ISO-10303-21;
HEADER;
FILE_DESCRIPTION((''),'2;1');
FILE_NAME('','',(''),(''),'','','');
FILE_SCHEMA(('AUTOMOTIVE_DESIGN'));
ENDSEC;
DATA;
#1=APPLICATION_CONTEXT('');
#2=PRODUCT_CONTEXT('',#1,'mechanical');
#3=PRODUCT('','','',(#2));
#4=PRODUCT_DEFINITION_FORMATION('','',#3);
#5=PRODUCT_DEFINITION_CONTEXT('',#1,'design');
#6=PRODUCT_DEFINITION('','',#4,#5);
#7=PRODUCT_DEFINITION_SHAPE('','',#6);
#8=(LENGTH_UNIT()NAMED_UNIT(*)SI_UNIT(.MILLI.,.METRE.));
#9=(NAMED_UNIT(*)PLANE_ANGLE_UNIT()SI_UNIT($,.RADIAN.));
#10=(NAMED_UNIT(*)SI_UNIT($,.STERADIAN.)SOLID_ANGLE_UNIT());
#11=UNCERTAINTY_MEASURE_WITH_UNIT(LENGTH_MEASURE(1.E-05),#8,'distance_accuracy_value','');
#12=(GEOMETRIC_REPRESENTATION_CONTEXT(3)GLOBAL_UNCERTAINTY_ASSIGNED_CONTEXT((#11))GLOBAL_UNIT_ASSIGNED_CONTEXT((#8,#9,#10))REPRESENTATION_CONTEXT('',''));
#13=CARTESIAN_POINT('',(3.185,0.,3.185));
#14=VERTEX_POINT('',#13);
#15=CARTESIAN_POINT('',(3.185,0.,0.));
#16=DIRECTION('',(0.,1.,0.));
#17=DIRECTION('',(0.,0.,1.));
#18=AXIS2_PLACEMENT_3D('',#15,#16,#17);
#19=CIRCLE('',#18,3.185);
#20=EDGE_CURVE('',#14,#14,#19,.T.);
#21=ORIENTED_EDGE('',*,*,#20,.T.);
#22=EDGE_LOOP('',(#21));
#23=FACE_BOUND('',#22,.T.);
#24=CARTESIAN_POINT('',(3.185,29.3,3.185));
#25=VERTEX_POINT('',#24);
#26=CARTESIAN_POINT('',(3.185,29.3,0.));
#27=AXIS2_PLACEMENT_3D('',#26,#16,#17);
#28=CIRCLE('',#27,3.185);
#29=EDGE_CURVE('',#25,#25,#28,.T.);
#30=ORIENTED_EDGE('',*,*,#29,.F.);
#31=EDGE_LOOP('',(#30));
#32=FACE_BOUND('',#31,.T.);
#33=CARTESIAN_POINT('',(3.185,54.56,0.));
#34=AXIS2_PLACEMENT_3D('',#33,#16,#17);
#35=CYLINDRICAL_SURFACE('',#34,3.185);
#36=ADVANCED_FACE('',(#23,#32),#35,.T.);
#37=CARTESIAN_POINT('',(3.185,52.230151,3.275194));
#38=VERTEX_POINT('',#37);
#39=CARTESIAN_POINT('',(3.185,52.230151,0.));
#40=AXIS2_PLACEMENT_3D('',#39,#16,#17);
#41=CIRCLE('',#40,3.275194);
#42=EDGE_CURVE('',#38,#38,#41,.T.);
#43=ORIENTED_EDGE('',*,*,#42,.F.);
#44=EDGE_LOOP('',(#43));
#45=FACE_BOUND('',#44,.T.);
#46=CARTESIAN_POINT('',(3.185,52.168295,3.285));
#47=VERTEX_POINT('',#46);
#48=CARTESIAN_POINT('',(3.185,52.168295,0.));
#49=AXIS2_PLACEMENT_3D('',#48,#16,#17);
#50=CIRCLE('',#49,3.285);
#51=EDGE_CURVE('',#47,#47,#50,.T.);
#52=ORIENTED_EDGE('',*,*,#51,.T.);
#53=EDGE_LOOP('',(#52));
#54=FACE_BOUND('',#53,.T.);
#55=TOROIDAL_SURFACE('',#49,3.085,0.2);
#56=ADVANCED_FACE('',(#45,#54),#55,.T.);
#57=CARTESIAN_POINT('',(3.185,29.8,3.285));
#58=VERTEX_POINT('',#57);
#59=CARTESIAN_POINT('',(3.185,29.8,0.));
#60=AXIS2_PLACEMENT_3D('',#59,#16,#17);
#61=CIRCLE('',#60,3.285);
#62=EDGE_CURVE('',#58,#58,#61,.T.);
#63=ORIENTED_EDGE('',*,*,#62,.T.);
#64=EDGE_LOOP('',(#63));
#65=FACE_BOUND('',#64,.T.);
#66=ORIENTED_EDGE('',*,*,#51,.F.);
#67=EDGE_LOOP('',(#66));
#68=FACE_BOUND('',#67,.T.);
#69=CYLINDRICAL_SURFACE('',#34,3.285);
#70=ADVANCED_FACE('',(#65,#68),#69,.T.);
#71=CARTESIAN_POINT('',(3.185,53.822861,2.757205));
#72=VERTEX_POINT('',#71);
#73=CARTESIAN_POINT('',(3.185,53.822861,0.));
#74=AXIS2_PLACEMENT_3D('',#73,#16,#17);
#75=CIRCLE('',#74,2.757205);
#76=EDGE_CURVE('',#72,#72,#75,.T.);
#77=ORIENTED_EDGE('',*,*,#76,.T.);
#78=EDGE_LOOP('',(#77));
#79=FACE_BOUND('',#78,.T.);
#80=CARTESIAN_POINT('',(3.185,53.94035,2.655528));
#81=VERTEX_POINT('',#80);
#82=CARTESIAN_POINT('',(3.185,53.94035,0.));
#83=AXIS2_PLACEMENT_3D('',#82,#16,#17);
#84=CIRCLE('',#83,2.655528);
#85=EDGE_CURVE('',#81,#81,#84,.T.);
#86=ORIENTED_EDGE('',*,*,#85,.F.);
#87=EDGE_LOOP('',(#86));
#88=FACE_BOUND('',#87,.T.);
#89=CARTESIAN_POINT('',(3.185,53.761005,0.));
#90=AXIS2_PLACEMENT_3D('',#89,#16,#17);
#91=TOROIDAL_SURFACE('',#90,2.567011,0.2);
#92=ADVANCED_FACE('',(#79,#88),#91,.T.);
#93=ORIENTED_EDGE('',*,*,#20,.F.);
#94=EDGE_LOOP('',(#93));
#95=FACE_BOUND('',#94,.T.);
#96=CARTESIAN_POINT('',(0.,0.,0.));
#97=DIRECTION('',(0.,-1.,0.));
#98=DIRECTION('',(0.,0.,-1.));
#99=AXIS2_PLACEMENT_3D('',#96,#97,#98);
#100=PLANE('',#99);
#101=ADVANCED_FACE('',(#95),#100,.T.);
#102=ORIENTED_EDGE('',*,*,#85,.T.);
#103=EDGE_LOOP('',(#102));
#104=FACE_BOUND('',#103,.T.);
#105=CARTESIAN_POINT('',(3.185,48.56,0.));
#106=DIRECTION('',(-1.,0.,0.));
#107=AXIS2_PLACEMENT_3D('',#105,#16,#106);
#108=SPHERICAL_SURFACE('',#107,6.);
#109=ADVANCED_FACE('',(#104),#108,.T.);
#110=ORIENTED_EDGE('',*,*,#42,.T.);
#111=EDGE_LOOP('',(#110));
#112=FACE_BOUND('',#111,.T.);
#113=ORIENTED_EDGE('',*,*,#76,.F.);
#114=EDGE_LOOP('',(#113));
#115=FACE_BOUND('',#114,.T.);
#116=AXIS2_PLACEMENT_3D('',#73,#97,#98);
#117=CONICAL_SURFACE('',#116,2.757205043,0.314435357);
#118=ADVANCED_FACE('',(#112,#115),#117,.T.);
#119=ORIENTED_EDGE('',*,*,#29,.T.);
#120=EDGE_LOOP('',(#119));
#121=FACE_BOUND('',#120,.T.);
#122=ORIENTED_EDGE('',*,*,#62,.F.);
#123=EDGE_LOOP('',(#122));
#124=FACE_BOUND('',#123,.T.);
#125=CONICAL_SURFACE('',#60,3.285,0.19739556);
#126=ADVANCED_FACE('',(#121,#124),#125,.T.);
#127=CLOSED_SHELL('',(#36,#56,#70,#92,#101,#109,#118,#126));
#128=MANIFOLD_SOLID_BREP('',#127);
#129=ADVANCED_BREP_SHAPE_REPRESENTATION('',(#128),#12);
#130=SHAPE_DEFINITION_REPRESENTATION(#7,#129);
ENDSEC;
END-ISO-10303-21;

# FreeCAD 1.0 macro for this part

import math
import FreeCAD as App
import Part
import Sketcher

V = App.Vector

doc = App.newDocument("Part")
body = doc.addObject("PartDesign::Body", "Body")

sketch1 = body.newObject("Sketcher::SketchObject", "Sketch")
sketch1.AttachmentSupport = (doc.getObject("XY_Plane"), [""])
sketch1.MapMode = "FlatFace"
sketch1.addGeometry([
    Part.LineSegment(V(0, 29.3, 0), V(0, 0, 0)),
    Part.LineSegment(V(0, 0, 0), V(3.185, 0, 0)),
    Part.LineSegment(V(3.185, 0, 0), V(3.185, 54.56, 0)),
    Part.ArcOfCircle(Part.Circle(V(3.185, 48.56, 0), V(0, 0, 1), 6), math.radians(90), math.radians(116.269127)),
    Part.ArcOfCircle(Part.Circle(V(0.617989, 53.761005, 0), V(0, 0, 1), 0.2), math.radians(116.269127), math.radians(161.984181)),
    Part.LineSegment(V(0.427795, 53.822861, 0), V(-0.090194, 52.230151, 0)),
    Part.ArcOfCircle(Part.Circle(V(0.1, 52.168295, 0), V(0, 0, 1), 0.2), math.radians(161.984183), math.radians(179.999999)),
    Part.LineSegment(V(-0.1, 52.168295, 0), V(-0.1, 29.8, 0)),
    Part.LineSegment(V(-0.1, 29.8, 0), V(0, 29.3, 0)),
], False)
sketch1.addGeometry(Part.LineSegment(V(3.185, 54.56, 0), V(3.185, 0, 0)), True)
sketch1.addConstraint([
    Sketcher.Constraint("Coincident", 0, 2, 1, 1),
    Sketcher.Constraint("Coincident", 1, 2, 2, 1),
    Sketcher.Constraint("Coincident", 2, 2, 3, 1),
    Sketcher.Constraint("Tangent", 3, 2, 4, 1),
    Sketcher.Constraint("Tangent", 4, 2, 5, 1),
    Sketcher.Constraint("Tangent", 5, 2, 6, 1),
    Sketcher.Constraint("Tangent", 6, 2, 7, 1),
    Sketcher.Constraint("Coincident", 7, 2, 8, 1),
    Sketcher.Constraint("Coincident", 8, 2, 0, 1),
    Sketcher.Constraint("Vertical", 0),
    Sketcher.Constraint("Horizontal", 1),
    Sketcher.Constraint("Vertical", 2),
    Sketcher.Constraint("Vertical", 7),
    Sketcher.Constraint("Vertical", 9),
    Sketcher.Constraint("Coincident", 0, 2, -1, 1),
    Sketcher.Constraint("Coincident", 9, 1, 2, 2),
    Sketcher.Constraint("Equal", 4, 6),
    Sketcher.Constraint("PointOnObject", 9, 2, -1),
    Sketcher.Constraint("Vertical", 3, 3, 1, 2),
    Sketcher.Constraint("Radius", 3, 6.0),
    Sketcher.Constraint("Radius", 4, 0.2),
    Sketcher.Constraint("DistanceY", 0, 2, 0, 1, 29.3),
    Sketcher.Constraint("DistanceY", 2, 1, 2, 2, 54.56),
    Sketcher.Constraint("DistanceX", -1, 1, 6, 3, 0.1),
    Sketcher.Constraint("DistanceY", -1, 1, 7, 2, 29.8),
    Sketcher.Constraint("DistanceX", 1, 1, 1, 2, 3.185),
    Sketcher.Constraint("DistanceY", 5, 2, 3, 2, 1.7102),
    Sketcher.Constraint("DistanceY", 7, 2, 7, 1, 22.368295),
])
revolution = body.newObject("PartDesign::Revolution", "Revolution")
revolution.Profile = sketch1
revolution.ReferenceAxis = (sketch1, ["Axis0"])
revolution.Angle = 360

doc.recompute()
